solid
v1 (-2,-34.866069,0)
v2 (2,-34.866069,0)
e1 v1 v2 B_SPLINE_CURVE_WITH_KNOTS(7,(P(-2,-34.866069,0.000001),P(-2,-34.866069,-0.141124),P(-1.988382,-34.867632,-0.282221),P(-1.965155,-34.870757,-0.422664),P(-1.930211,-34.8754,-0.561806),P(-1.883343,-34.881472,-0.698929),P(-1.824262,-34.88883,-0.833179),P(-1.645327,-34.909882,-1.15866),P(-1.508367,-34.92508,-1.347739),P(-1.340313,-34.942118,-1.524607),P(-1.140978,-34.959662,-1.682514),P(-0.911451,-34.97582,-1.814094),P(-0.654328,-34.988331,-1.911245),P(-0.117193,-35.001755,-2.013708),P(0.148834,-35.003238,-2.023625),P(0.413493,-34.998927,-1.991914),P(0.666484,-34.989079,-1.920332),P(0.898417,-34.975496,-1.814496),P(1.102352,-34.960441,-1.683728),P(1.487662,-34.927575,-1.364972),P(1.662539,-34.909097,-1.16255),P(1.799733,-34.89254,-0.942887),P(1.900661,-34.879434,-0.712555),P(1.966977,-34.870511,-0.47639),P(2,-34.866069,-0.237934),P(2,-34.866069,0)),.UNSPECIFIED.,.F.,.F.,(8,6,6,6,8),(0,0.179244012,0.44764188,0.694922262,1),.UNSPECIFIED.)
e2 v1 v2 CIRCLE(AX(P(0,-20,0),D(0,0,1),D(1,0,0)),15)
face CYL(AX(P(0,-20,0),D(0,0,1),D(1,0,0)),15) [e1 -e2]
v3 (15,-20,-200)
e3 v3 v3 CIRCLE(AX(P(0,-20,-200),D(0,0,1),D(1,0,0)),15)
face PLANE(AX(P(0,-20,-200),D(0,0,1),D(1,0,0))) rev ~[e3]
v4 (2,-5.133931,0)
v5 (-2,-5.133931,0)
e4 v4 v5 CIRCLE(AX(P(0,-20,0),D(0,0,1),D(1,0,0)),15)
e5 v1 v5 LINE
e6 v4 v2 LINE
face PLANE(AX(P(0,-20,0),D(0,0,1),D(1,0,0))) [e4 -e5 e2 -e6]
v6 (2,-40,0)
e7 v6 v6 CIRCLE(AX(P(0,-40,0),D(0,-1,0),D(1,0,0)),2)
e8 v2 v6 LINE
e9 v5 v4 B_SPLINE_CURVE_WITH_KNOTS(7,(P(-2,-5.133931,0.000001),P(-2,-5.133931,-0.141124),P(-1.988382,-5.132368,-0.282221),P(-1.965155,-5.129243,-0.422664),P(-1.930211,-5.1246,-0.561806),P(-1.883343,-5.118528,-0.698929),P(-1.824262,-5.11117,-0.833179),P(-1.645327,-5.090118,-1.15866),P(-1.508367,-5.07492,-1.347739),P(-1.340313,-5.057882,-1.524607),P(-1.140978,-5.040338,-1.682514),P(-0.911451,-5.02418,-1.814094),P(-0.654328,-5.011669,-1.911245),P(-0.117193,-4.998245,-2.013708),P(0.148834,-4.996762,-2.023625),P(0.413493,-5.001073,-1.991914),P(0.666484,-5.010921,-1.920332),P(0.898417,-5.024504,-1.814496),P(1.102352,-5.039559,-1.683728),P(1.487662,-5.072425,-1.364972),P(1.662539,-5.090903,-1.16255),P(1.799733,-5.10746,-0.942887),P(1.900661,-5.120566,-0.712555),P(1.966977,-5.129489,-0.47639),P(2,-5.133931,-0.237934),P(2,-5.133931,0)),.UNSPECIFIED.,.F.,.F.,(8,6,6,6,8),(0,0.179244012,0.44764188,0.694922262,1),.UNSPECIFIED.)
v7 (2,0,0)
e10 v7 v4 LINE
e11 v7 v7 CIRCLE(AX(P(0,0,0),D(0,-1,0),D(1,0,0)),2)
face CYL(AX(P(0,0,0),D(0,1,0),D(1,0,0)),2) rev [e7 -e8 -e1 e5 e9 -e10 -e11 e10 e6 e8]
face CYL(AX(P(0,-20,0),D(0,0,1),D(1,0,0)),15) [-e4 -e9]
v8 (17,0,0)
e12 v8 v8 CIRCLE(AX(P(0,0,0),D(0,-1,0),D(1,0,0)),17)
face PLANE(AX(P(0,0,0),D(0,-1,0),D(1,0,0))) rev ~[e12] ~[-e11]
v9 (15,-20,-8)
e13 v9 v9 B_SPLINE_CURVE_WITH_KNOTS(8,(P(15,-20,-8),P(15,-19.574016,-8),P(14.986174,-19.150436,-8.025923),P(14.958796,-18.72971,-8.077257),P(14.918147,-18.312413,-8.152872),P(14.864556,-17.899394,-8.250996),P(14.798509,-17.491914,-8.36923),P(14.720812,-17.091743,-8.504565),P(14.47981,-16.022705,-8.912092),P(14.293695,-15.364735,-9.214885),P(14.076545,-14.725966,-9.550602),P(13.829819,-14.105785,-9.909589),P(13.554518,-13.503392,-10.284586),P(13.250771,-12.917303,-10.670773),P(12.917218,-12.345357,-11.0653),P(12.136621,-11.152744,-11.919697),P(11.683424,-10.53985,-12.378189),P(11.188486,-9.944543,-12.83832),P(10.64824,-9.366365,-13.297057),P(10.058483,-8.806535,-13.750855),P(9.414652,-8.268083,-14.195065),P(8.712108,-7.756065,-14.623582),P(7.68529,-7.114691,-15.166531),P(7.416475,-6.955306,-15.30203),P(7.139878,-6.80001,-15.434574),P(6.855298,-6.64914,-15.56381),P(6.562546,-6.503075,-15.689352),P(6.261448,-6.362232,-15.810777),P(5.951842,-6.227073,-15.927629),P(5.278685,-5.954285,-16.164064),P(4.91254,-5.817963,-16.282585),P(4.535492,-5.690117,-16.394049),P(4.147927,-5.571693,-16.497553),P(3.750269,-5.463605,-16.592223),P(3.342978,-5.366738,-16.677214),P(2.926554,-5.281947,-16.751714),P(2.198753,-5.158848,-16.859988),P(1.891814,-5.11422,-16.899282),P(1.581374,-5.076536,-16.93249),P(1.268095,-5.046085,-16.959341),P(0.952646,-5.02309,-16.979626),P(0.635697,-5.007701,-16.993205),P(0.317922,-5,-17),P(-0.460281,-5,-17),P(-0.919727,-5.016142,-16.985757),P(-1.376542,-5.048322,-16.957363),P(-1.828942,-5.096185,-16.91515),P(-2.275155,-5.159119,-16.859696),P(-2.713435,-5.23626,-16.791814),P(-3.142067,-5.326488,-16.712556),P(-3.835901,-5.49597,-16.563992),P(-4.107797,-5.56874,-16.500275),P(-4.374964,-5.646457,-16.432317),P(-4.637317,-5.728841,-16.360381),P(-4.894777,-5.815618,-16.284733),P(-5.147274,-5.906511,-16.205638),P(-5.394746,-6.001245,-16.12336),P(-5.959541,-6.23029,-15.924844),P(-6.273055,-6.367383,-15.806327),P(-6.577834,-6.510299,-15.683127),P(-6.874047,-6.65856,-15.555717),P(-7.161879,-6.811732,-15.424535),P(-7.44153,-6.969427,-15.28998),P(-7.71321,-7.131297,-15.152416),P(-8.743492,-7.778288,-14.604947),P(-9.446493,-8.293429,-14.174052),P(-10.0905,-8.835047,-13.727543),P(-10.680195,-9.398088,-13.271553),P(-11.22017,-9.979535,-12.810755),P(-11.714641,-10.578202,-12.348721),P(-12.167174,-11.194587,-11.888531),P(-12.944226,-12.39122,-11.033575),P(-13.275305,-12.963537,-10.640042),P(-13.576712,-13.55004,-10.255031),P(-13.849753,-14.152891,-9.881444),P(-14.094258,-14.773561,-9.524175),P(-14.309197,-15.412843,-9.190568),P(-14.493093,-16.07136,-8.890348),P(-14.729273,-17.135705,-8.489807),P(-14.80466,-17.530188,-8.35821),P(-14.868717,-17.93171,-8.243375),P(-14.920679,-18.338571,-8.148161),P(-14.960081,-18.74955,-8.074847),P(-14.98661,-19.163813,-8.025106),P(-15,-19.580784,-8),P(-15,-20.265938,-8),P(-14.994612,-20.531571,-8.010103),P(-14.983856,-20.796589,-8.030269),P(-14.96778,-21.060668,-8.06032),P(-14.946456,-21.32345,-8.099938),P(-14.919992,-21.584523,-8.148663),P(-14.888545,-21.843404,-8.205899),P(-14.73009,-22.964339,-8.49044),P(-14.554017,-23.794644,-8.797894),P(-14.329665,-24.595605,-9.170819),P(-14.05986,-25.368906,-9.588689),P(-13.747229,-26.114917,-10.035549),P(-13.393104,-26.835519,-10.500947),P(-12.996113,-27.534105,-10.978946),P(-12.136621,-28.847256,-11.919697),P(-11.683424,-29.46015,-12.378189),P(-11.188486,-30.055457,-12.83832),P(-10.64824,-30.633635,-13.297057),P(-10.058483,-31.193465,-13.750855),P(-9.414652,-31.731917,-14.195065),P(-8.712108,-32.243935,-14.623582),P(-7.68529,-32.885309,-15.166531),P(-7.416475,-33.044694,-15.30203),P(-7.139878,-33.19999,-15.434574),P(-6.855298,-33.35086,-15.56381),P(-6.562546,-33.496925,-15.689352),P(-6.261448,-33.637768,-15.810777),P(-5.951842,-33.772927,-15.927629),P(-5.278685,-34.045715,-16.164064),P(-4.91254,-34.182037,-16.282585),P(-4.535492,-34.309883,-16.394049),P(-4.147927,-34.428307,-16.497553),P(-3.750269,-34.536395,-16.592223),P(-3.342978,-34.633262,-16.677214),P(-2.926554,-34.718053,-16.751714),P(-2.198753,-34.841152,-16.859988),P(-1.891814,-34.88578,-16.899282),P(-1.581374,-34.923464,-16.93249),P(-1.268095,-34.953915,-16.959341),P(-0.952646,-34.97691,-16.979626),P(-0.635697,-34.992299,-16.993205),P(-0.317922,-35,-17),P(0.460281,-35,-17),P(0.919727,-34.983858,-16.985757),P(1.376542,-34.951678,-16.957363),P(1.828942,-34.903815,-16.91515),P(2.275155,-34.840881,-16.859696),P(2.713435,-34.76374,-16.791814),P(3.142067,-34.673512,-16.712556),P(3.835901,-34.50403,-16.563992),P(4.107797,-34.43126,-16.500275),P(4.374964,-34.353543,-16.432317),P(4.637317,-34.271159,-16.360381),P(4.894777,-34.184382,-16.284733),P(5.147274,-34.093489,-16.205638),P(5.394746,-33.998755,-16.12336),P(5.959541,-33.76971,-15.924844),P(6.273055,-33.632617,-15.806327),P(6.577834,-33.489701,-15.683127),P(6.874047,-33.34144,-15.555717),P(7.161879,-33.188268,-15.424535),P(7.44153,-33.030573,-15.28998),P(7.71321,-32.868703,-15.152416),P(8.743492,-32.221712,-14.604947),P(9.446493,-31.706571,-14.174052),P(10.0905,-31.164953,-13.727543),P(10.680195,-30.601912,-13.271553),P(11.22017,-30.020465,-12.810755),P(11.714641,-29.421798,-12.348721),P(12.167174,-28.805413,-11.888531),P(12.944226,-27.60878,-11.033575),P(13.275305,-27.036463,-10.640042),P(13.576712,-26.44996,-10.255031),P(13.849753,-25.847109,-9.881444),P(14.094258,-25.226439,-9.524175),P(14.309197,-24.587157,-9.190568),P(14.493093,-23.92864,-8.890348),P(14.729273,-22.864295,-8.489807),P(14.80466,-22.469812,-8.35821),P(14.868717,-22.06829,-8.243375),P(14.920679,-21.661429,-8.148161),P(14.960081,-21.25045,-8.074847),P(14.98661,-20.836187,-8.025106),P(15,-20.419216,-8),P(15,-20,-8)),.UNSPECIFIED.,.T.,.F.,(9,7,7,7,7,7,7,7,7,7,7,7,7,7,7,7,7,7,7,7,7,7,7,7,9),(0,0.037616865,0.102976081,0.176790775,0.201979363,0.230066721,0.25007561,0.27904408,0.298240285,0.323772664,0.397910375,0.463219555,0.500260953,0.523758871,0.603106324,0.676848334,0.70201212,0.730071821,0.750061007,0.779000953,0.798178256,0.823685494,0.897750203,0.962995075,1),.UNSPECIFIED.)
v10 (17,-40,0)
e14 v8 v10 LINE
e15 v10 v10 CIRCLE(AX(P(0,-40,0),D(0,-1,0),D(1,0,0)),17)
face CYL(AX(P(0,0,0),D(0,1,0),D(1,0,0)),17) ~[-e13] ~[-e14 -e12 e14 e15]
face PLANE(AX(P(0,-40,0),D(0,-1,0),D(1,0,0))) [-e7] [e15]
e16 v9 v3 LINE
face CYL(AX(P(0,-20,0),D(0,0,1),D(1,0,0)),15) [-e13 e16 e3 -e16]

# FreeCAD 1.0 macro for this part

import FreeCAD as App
import Part
import Sketcher

doc = App.newDocument("Part")
params = doc.addObject("Spreadsheet::Sheet", "Params")
for row, (alias, value) in enumerate([
    ("sketch1_diameter", "34 mm"),
    ("sketch1_diameter2", "4 mm"),
    ("pad1_length", "40 mm"),
    ("sketch2_diameter", "30 mm"),
    ("pad2_length", "200 mm"),
], start=1):
    params.set(f"A{row}", alias)
    params.set(f"B{row}", "=" + value)
    params.setAlias(f"B{row}", alias)

body = doc.addObject("PartDesign::Body", "Body")

# Sketch on XZ plane
sketch1 = body.newObject("Sketcher::SketchObject", "Sketch")
sketch1.AttachmentSupport = (doc.getObject("XZ_Plane"), [""])
sketch1.MapMode = "FlatFace"
sketch1.addGeometry([
    Part.Circle(App.Vector(0, 0, 0), App.Vector(0, 0, 1), 17),
    Part.Circle(App.Vector(0, 0, 0), App.Vector(0, 0, 1), 2),
], False)
sketch1.addConstraint([
    Sketcher.Constraint("Coincident", 0, 3, -1, 1),
    Sketcher.Constraint("Coincident", 1, 3, -1, 1),
    Sketcher.Constraint("Diameter", 0, 34.0),
    Sketcher.Constraint("Diameter", 1, 4.0),
])
sketch1.setExpression("Constraints[2]", "Params.sketch1_diameter")
sketch1.setExpression("Constraints[3]", "Params.sketch1_diameter2")
pad1 = body.newObject("PartDesign::Pad", "Pad")
pad1.Profile = sketch1
pad1.setExpression("Length", "Params.pad1_length")

# Sketch on XY plane
sketch2 = body.newObject("Sketcher::SketchObject", "Sketch001")
sketch2.AttachmentSupport = (doc.getObject("XY_Plane"), [""])
sketch2.MapMode = "FlatFace"
sketch2.addGeometry(Part.Circle(App.Vector(0, -20, 0), App.Vector(0, 0, 1), 15), False)
sketch2.addConstraint([
    Sketcher.Constraint("PointOnObject", 0, 3, -2),
    Sketcher.Constraint("Diameter", 0, 30.0),
    Sketcher.Constraint("DistanceY", 0, 3, -1, 1, 20.0),
])
sketch2.setExpression("Constraints[1]", "Params.sketch2_diameter")
pad2 = body.newObject("PartDesign::Pad", "Pad001")
pad2.Profile = sketch2
pad2.setExpression("Length", "Params.pad2_length")
pad2.Reversed = True

doc.recompute()
